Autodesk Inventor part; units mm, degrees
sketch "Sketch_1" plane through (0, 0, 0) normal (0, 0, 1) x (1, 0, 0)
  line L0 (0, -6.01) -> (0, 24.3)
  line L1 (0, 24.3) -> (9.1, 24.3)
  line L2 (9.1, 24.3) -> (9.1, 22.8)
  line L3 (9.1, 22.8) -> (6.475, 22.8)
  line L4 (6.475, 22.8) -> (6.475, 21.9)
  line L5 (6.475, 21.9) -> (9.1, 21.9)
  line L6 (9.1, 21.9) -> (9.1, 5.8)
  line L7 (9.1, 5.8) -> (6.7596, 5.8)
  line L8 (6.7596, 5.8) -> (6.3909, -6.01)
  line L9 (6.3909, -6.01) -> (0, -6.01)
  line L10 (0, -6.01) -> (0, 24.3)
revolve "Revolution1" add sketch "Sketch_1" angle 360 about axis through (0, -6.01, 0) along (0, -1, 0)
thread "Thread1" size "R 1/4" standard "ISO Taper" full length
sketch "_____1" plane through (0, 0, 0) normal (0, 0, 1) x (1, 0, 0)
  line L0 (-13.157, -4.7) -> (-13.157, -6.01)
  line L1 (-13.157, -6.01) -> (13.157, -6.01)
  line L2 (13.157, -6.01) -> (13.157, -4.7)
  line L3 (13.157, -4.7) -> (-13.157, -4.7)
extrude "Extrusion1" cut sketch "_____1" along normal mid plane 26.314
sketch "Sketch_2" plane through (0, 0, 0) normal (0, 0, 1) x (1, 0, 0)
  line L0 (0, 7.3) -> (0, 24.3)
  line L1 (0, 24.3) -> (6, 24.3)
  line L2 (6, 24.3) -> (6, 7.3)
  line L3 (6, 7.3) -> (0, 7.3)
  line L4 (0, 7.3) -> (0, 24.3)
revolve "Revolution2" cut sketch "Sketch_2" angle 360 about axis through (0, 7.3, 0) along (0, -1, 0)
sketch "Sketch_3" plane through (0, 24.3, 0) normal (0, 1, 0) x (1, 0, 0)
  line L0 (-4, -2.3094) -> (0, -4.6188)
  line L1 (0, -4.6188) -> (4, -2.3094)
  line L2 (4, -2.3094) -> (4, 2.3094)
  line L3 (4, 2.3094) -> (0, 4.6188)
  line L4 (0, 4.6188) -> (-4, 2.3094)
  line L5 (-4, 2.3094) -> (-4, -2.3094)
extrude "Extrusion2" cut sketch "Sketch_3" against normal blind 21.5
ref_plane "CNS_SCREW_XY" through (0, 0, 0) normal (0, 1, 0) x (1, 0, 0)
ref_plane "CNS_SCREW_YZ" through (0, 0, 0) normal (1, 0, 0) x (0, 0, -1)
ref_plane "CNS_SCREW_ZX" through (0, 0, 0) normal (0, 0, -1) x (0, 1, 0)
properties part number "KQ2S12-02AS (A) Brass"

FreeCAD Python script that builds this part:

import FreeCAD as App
import Part
import Sketcher
from FreeCAD import Vector
Q = App.Units.Quantity

doc = App.newDocument("Part")
body = doc.addObject("PartDesign::Body", "Body")

sketch1 = body.newObject("Sketcher::SketchObject", "Sketch")
sketch1.AttachmentSupport = (doc.getObject("XY_Plane"), [""])
sketch1.MapMode = "FlatFace"
sketch1.addGeometry([
    Part.LineSegment(Vector(0, 24.3, 0), Vector(0, -6, 0)),
    Part.LineSegment(Vector(0, -6, 0), Vector(6.4, -6, 0)),
    Part.LineSegment(Vector(6.4, -6, 0), Vector(6.8, 5.8, 0)),
    Part.LineSegment(Vector(6.8, 5.8, 0), Vector(9.1, 5.8, 0)),
    Part.LineSegment(Vector(9.1, 5.8, 0), Vector(9.1, 21.9, 0)),
    Part.LineSegment(Vector(9.1, 21.9, 0), Vector(6.5, 21.9, 0)),
    Part.LineSegment(Vector(6.5, 21.9, 0), Vector(6.5, 22.8, 0)),
    Part.LineSegment(Vector(6.5, 22.8, 0), Vector(9.1, 22.8, 0)),
    Part.LineSegment(Vector(9.1, 22.8, 0), Vector(9.1, 24.3, 0)),
    Part.LineSegment(Vector(9.1, 24.3, 0), Vector(0, 24.3, 0)),
], False)
sketch1.addConstraint([
    Sketcher.Constraint("Coincident", 0, 2, 1, 1),
    Sketcher.Constraint("Coincident", 1, 2, 2, 1),
    Sketcher.Constraint("Coincident", 2, 2, 3, 1),
    Sketcher.Constraint("Coincident", 3, 2, 4, 1),
    Sketcher.Constraint("Coincident", 4, 2, 5, 1),
    Sketcher.Constraint("Coincident", 5, 2, 6, 1),
    Sketcher.Constraint("Coincident", 6, 2, 7, 1),
    Sketcher.Constraint("Coincident", 7, 2, 8, 1),
    Sketcher.Constraint("Coincident", 8, 2, 9, 1),
    Sketcher.Constraint("Coincident", 9, 2, 0, 1),
    Sketcher.Constraint("Vertical", 0),
    Sketcher.Constraint("Horizontal", 1),
    Sketcher.Constraint("Horizontal", 3),
    Sketcher.Constraint("Vertical", 4),
    Sketcher.Constraint("Horizontal", 5),
    Sketcher.Constraint("Vertical", 6),
    Sketcher.Constraint("Horizontal", 7),
    Sketcher.Constraint("Vertical", 8),
    Sketcher.Constraint("Horizontal", 9),
    Sketcher.Constraint("PointOnObject", 0, 2, -2),
    Sketcher.Constraint("Vertical", 4, 2, 7, 2),
    Sketcher.Constraint("DistanceX", 9, 2, 9, 1, 9.1),
    Sketcher.Constraint("DistanceY", 4, 1, 4, 2, 16.1),
    Sketcher.Constraint("DistanceY", 6, 1, 6, 2, 0.9),
    Sketcher.Constraint("DistanceY", 8, 1, 8, 2, 1.5),
    Sketcher.Constraint("DistanceY", 0, 2, 0, 1, 30.31),
    Sketcher.Constraint("DistanceY", -1, 1, 2, 2, 5.8),
    Sketcher.Constraint("DistanceX", 1, 1, 1, 2, 6.391),
    Sketcher.Constraint("DistanceX", 5, 2, 5, 1, 2.625),
    Sketcher.Constraint("DistanceX", 3, 1, 3, 2, 2.3404),
])
revolution = body.newObject("PartDesign::Revolution", "Revolution")
revolution.Profile = sketch1
revolution.ReferenceAxis = (sketch1, ["V_Axis"])
revolution.Angle = 360

sketch2 = body.newObject("Sketcher::SketchObject", "Sketch001")
sketch2.AttachmentSupport = (doc.getObject("XY_Plane"), [""])
sketch2.MapMode = "FlatFace"
sketch2.addGeometry([
    Part.LineSegment(Vector(13.2, -4.7, 0), Vector(-13.2, -4.7, 0)),
    Part.LineSegment(Vector(-13.2, -4.7, 0), Vector(-13.2, -6, 0)),
    Part.LineSegment(Vector(-13.2, -6, 0), Vector(13.2, -6, 0)),
    Part.LineSegment(Vector(13.2, -6, 0), Vector(13.2, -4.7, 0)),
], False)
sketch2.addConstraint([
    Sketcher.Constraint("Coincident", 0, 2, 1, 1),
    Sketcher.Constraint("Coincident", 1, 2, 2, 1),
    Sketcher.Constraint("Coincident", 2, 2, 3, 1),
    Sketcher.Constraint("Coincident", 3, 2, 0, 1),
    Sketcher.Constraint("Horizontal", 0),
    Sketcher.Constraint("Vertical", 1),
    Sketcher.Constraint("Horizontal", 2),
    Sketcher.Constraint("Vertical", 3),
    Sketcher.Constraint("DistanceY", 1, 2, 1, 1, 1.31),
    Sketcher.Constraint("DistanceY", 0, 2, -1, 1, 4.7),
    Sketcher.Constraint("DistanceX", 0, 2, 0, 1, 26.314),
    Sketcher.Constraint("DistanceX", 0, 2, -1, 1, 13.157),
])
pocket1 = body.newObject("PartDesign::Pocket", "Pocket")
pocket1.Profile = sketch2
pocket1.Length = 26.314
pocket1.Midplane = True

sketch3 = body.newObject("Sketcher::SketchObject", "Sketch002")
sketch3.AttachmentSupport = (doc.getObject("XY_Plane"), [""])
sketch3.MapMode = "FlatFace"
sketch3.addGeometry([
    Part.LineSegment(Vector(0, 24, 0), Vector(0, 7, 0)),
    Part.LineSegment(Vector(0, 7, 0), Vector(6, 7, 0)),
    Part.LineSegment(Vector(6, 7, 0), Vector(6, 24, 0)),
    Part.LineSegment(Vector(6, 24, 0), Vector(0, 24, 0)),
], False)
sketch3.addConstraint([
    Sketcher.Constraint("Coincident", 0, 2, 1, 1),
    Sketcher.Constraint("Coincident", 1, 2, 2, 1),
    Sketcher.Constraint("Coincident", 2, 2, 3, 1),
    Sketcher.Constraint("Coincident", 3, 2, 0, 1),
    Sketcher.Constraint("Vertical", 0),
    Sketcher.Constraint("Horizontal", 1),
    Sketcher.Constraint("Vertical", 2),
    Sketcher.Constraint("Horizontal", 3),
    Sketcher.Constraint("PointOnObject", 0, 2, -2),
    Sketcher.Constraint("DistanceX", 1, 1, 1, 2, 6.0),
    Sketcher.Constraint("DistanceY", 0, 2, 0, 1, 17.0),
    Sketcher.Constraint("DistanceY", -1, 1, 0, 2, 7.3),
])
groove = body.newObject("PartDesign::Groove", "Groove")
groove.Profile = sketch3
groove.ReferenceAxis = (sketch3, ["V_Axis"])
groove.Angle = 360

sketch4 = body.newObject("Sketcher::SketchObject", "Sketch003")
sketch4.AttachmentSupport = (doc.getObject("XZ_Plane"), [""])
sketch4.MapMode = "FlatFace"
sketch4.AttachmentOffset = App.Placement(Vector(0, 0, -24.3), App.Rotation())
sketch4.addGeometry([
    Part.LineSegment(Vector(-4, -2.3, 0), Vector(-4, 2.3, 0)),
    Part.LineSegment(Vector(-4, 2.3, 0), Vector(0, 4.6, 0)),
    Part.LineSegment(Vector(0, 4.6, 0), Vector(4, 2.3, 0)),
    Part.LineSegment(Vector(4, 2.3, 0), Vector(4, -2.3, 0)),
    Part.LineSegment(Vector(4, -2.3, 0), Vector(0, -4.6, 0)),
    Part.LineSegment(Vector(0, -4.6, 0), Vector(-4, -2.3, 0)),
], False)
sketch4.addConstraint([
    Sketcher.Constraint("Coincident", 0, 2, 1, 1),
    Sketcher.Constraint("Coincident", 1, 2, 2, 1),
    Sketcher.Constraint("Coincident", 2, 2, 3, 1),
    Sketcher.Constraint("Coincident", 3, 2, 4, 1),
    Sketcher.Constraint("Coincident", 4, 2, 5, 1),
    Sketcher.Constraint("Coincident", 5, 2, 0, 1),
    Sketcher.Constraint("Vertical", 0),
    Sketcher.Constraint("Vertical", 3),
    Sketcher.Constraint("Symmetric", 0, 2, 3, 2, -1, 1),
    Sketcher.Constraint("Symmetric", 1, 2, 4, 2, -1, 1),
    Sketcher.Constraint("PointOnObject", 1, 2, -2),
    Sketcher.Constraint("Parallel", 2, 5),
    Sketcher.Constraint("Horizontal", 0, 2, 2, 2),
    Sketcher.Constraint("Angle", 1, Q("30 deg")),
    Sketcher.Constraint("DistanceX", 0, 2, -1, 1, 4.0),
    Sketcher.Constraint("DistanceY", 0, 1, 0, 2, 4.6188),
])
pocket2 = body.newObject("PartDesign::Pocket", "Pocket001")
pocket2.Profile = sketch4
pocket2.Length = 21.5
pocket2.Reversed = True

doc.recompute()
